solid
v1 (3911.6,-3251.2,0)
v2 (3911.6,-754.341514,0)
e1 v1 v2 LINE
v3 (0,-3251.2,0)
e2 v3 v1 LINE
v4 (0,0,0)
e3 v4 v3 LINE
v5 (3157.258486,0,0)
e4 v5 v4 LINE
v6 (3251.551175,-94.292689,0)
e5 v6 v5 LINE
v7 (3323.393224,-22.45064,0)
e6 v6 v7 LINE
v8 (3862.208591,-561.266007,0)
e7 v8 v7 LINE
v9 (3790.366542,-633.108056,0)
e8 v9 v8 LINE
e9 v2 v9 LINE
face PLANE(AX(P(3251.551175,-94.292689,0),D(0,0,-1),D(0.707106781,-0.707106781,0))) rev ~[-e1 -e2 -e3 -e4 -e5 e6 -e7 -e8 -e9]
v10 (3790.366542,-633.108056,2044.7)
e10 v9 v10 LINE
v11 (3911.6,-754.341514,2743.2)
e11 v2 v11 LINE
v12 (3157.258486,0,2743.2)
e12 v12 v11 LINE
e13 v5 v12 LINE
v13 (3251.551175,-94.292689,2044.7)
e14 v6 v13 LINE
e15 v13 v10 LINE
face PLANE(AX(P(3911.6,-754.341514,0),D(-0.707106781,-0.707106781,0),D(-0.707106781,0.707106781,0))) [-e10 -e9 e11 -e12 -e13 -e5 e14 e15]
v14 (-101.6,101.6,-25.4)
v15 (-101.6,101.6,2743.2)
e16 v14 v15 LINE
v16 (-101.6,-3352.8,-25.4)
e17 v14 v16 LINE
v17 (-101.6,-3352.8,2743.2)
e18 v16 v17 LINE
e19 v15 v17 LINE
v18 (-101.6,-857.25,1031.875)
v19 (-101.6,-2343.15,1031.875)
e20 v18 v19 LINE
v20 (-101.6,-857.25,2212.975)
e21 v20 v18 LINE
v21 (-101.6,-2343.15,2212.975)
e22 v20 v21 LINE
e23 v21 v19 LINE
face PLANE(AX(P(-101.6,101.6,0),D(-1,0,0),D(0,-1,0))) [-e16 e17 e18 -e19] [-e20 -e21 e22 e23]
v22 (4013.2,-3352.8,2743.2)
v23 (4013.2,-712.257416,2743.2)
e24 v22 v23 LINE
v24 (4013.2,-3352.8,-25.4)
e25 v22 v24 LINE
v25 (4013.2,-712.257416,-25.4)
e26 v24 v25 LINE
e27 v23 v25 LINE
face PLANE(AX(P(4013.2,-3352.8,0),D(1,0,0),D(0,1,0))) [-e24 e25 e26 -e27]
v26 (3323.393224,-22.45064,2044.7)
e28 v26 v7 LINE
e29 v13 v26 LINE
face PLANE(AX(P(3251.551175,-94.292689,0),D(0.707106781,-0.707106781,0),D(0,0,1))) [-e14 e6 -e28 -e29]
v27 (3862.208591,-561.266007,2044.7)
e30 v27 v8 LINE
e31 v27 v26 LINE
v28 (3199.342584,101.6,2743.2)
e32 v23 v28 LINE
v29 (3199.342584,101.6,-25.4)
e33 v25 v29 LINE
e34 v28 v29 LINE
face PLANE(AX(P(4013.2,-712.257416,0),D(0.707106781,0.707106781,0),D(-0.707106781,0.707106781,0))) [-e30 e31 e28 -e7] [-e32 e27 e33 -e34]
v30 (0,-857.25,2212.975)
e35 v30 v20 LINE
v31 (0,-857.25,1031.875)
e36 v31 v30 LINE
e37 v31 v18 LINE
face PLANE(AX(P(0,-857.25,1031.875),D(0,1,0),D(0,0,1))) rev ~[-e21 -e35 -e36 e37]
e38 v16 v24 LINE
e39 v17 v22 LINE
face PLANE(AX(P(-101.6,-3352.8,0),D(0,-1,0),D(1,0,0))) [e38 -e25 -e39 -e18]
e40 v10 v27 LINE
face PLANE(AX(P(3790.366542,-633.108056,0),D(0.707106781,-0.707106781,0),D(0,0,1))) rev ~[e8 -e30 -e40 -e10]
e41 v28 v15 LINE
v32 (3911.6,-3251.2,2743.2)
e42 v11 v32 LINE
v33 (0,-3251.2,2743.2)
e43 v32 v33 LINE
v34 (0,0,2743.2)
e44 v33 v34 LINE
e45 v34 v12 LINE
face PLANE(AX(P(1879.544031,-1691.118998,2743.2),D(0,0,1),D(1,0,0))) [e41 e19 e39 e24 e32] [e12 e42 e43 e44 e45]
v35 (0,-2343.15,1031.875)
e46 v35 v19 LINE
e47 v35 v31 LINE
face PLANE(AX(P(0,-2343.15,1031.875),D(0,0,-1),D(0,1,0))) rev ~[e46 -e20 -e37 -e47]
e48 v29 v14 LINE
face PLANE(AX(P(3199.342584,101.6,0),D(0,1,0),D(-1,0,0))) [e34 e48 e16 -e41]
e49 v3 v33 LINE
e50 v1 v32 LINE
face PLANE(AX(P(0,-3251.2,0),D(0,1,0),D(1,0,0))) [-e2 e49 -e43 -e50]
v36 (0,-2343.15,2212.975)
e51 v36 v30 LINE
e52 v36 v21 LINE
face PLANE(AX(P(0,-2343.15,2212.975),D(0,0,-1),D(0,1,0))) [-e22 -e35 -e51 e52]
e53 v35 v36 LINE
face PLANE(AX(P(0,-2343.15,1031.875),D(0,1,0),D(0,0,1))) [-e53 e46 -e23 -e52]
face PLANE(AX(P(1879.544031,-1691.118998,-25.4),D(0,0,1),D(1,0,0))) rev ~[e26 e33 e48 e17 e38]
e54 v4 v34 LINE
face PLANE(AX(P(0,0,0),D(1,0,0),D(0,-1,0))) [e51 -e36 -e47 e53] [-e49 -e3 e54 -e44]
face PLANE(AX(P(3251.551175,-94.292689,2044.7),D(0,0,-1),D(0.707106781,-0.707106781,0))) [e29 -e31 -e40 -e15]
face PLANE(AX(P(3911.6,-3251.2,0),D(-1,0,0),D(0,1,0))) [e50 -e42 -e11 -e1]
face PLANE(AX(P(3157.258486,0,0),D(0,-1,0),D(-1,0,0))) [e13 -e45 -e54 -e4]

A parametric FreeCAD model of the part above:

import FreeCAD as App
import Part
import Sketcher
from FreeCAD import Vector
Q = App.Units.Quantity

doc = App.newDocument("Part")
params = doc.addObject("Spreadsheet::Sheet", "Params")
for row, (alias, value) in enumerate([
    ("sketch1_width", "154 in"),
    ("sketch1_height", "128 in"),
    ("sketch1_length", "42 in"),
    ("pad1_length", "1 in"),
    ("sketch2_width", "162 in"),
    ("sketch2_height", "136 in"),
    ("pad2_length", "108 in"),
    ("sketch3_width", "162 in"),
    ("sketch3_height", "136 in"),
    ("sketch4_width", "154 in"),
    ("sketch4_height", "128 in"),
    ("sketch4_length", "42 in"),
    ("sketch5_width", "58.5 in"),
    ("sketch5_height", "46.5 in"),
    ("sketch6_width", "30 in"),
    ("sketch6_height", "80.4999999 in"),
], start=1):
    params.set(f"A{row}", alias)
    params.set(f"B{row}", "=" + value)
    params.setAlias(f"B{row}", alias)

body = doc.addObject("PartDesign::Body", "Body")

sketch1 = body.newObject("Sketcher::SketchObject", "Sketch")
sketch1.AttachmentSupport = (doc.getObject("XY_Plane"), [""])
sketch1.MapMode = "FlatFace"
sketch1.addGeometry(Part.LineSegment(Vector(3157, 0, 0), Vector(0, 0, 0)), False)
sketch1.addGeometry(Part.LineSegment(Vector(0, 0, 0), Vector(0, -3251, 0)), False)
sketch1.addGeometry(Part.LineSegment(Vector(0, -3251, 0), Vector(3912, -3251, 0)), False)
sketch1.addGeometry(Part.LineSegment(Vector(3912, -3251, 0), Vector(3912, -754, 0)), False)
sketch1.addGeometry(Part.LineSegment(Vector(3912, -754, 0), Vector(3157, 0, 0)), False)
sketch1.addConstraint(Sketcher.Constraint("Coincident", 0, 2, 1, 1))
sketch1.addConstraint(Sketcher.Constraint("Coincident", 1, 2, 2, 1))
sketch1.addConstraint(Sketcher.Constraint("Coincident", 2, 2, 3, 1))
sketch1.addConstraint(Sketcher.Constraint("Coincident", 3, 2, 4, 1))
sketch1.addConstraint(Sketcher.Constraint("Coincident", 4, 2, 0, 1))
sketch1.addConstraint(Sketcher.Constraint("Horizontal", 0))
sketch1.addConstraint(Sketcher.Constraint("Vertical", 1))
sketch1.addConstraint(Sketcher.Constraint("Horizontal", 2))
sketch1.addConstraint(Sketcher.Constraint("Vertical", 3))
sketch1.addConstraint(Sketcher.Constraint("Coincident", 0, 2, -1, 1))
sketch1.addConstraint(Sketcher.Constraint("DistanceX", 2, 1, 2, 2, Q("154 in")))
sketch1.addConstraint(Sketcher.Constraint("DistanceY", 1, 2, 1, 1, Q("128 in")))
sketch1.addConstraint(Sketcher.Constraint("Distance", 4, Q("42 in")))
sketch1.addConstraint(Sketcher.Constraint("Angle", 4, Q("135 deg")))
sketch1.setExpression("Constraints[10]", "Params.sketch1_width")
sketch1.setExpression("Constraints[11]", "Params.sketch1_height")
sketch1.setExpression("Constraints[12]", "Params.sketch1_length")
pad1 = body.newObject("PartDesign::Pad", "Pad")
pad1.Profile = sketch1
pad1.setExpression("Length", "Params.pad1_length")
pad1.Reversed = True

sketch2 = body.newObject("Sketcher::SketchObject", "Sketch001")
sketch2.AttachmentSupport = (doc.getObject("XY_Plane"), [""])
sketch2.MapMode = "FlatFace"
sketch2.addGeometry(Part.LineSegment(Vector(3199, 102, 0), Vector(-102, 102, 0)), False)
sketch2.addGeometry(Part.LineSegment(Vector(-102, 102, 0), Vector(-102, -3353, 0)), False)
sketch2.addGeometry(Part.LineSegment(Vector(-102, -3353, 0), Vector(4013, -3353, 0)), False)
sketch2.addGeometry(Part.LineSegment(Vector(4013, -3353, 0), Vector(4013, -712, 0)), False)
sketch2.addGeometry(Part.LineSegment(Vector(4013, -712, 0), Vector(3199, 102, 0)), False)
sketch2.addConstraint(Sketcher.Constraint("Coincident", 0, 2, 1, 1))
sketch2.addConstraint(Sketcher.Constraint("Coincident", 1, 2, 2, 1))
sketch2.addConstraint(Sketcher.Constraint("Coincident", 2, 2, 3, 1))
sketch2.addConstraint(Sketcher.Constraint("Coincident", 3, 2, 4, 1))
sketch2.addConstraint(Sketcher.Constraint("Coincident", 4, 2, 0, 1))
sketch2.addConstraint(Sketcher.Constraint("Horizontal", 0))
sketch2.addConstraint(Sketcher.Constraint("Vertical", 1))
sketch2.addConstraint(Sketcher.Constraint("Horizontal", 2))
sketch2.addConstraint(Sketcher.Constraint("Vertical", 3))
sketch2.addConstraint(Sketcher.Constraint("DistanceX", 2, 1, 2, 2, Q("162 in")))
sketch2.addConstraint(Sketcher.Constraint("DistanceY", 1, 2, 1, 1, Q("136 in")))
sketch2.addConstraint(Sketcher.Constraint("DistanceX", 0, 2, -1, 1, Q("4 in")))
sketch2.addConstraint(Sketcher.Constraint("DistanceY", -1, 1, 0, 2, Q("4 in")))
sketch2.addConstraint(Sketcher.Constraint("Angle", 4, Q("135 deg")))
sketch2.addConstraint(Sketcher.Constraint("DistanceX", 0, 2, 0, 1, 3300.942584))
sketch2.setExpression("Constraints[9]", "Params.sketch2_width")
sketch2.setExpression("Constraints[10]", "Params.sketch2_height")
pad2 = body.newObject("PartDesign::Pad", "Pad001")
pad2.Profile = sketch2
pad2.setExpression("Length", "Params.pad2_length")

sketch3 = body.newObject("Sketcher::SketchObject", "Sketch002")
sketch3.AttachmentSupport = (doc.getObject("XY_Plane"), [""])
sketch3.MapMode = "FlatFace"
sketch3.addGeometry(Part.LineSegment(Vector(3199, 102, 0), Vector(-102, 102, 0)), False)
sketch3.addGeometry(Part.LineSegment(Vector(-102, 102, 0), Vector(-102, -3353, 0)), False)
sketch3.addGeometry(Part.LineSegment(Vector(-102, -3353, 0), Vector(4013, -3353, 0)), False)
sketch3.addGeometry(Part.LineSegment(Vector(4013, -3353, 0), Vector(4013, -712, 0)), False)
sketch3.addGeometry(Part.LineSegment(Vector(4013, -712, 0), Vector(3199, 102, 0)), False)
sketch3.addConstraint(Sketcher.Constraint("Coincident", 0, 2, 1, 1))
sketch3.addConstraint(Sketcher.Constraint("Coincident", 1, 2, 2, 1))
sketch3.addConstraint(Sketcher.Constraint("Coincident", 2, 2, 3, 1))
sketch3.addConstraint(Sketcher.Constraint("Coincident", 3, 2, 4, 1))
sketch3.addConstraint(Sketcher.Constraint("Coincident", 4, 2, 0, 1))
sketch3.addConstraint(Sketcher.Constraint("Horizontal", 0))
sketch3.addConstraint(Sketcher.Constraint("Vertical", 1))
sketch3.addConstraint(Sketcher.Constraint("Horizontal", 2))
sketch3.addConstraint(Sketcher.Constraint("Vertical", 3))
sketch3.addConstraint(Sketcher.Constraint("DistanceX", 2, 1, 2, 2, Q("162 in")))
sketch3.addConstraint(Sketcher.Constraint("DistanceY", 1, 2, 1, 1, Q("136 in")))
sketch3.addConstraint(Sketcher.Constraint("DistanceX", 0, 2, -1, 1, Q("4 in")))
sketch3.addConstraint(Sketcher.Constraint("DistanceY", -1, 1, 0, 2, Q("4 in")))
sketch3.addConstraint(Sketcher.Constraint("Angle", 4, Q("135 deg")))
sketch3.addConstraint(Sketcher.Constraint("DistanceX", 0, 2, 0, 1, 3300.942584))
sketch3.setExpression("Constraints[9]", "Params.sketch3_width")
sketch3.setExpression("Constraints[10]", "Params.sketch3_height")
pad3 = body.newObject("PartDesign::Pad", "Pad002")
pad3.Profile = sketch3
pad3.Type = "UpToLast"
pad3.Reversed = True

sketch4 = body.newObject("Sketcher::SketchObject", "Sketch003")
sketch4.AttachmentSupport = (doc.getObject("XY_Plane"), [""])
sketch4.MapMode = "FlatFace"
sketch4.addGeometry(Part.LineSegment(Vector(3157, 0, 0), Vector(0, 0, 0)), False)
sketch4.addGeometry(Part.LineSegment(Vector(0, 0, 0), Vector(0, -3251, 0)), False)
sketch4.addGeometry(Part.LineSegment(Vector(0, -3251, 0), Vector(3912, -3251, 0)), False)
sketch4.addGeometry(Part.LineSegment(Vector(3912, -3251, 0), Vector(3912, -754, 0)), False)
sketch4.addGeometry(Part.LineSegment(Vector(3912, -754, 0), Vector(3157, 0, 0)), False)
sketch4.addConstraint(Sketcher.Constraint("Coincident", 0, 2, 1, 1))
sketch4.addConstraint(Sketcher.Constraint("Coincident", 1, 2, 2, 1))
sketch4.addConstraint(Sketcher.Constraint("Coincident", 2, 2, 3, 1))
sketch4.addConstraint(Sketcher.Constraint("Coincident", 3, 2, 4, 1))
sketch4.addConstraint(Sketcher.Constraint("Coincident", 4, 2, 0, 1))
sketch4.addConstraint(Sketcher.Constraint("Horizontal", 0))
sketch4.addConstraint(Sketcher.Constraint("Vertical", 1))
sketch4.addConstraint(Sketcher.Constraint("Horizontal", 2))
sketch4.addConstraint(Sketcher.Constraint("Vertical", 3))
sketch4.addConstraint(Sketcher.Constraint("Coincident", 0, 2, -1, 1))
sketch4.addConstraint(Sketcher.Constraint("DistanceX", 2, 1, 2, 2, Q("154 in")))
sketch4.addConstraint(Sketcher.Constraint("DistanceY", 1, 2, 1, 1, Q("128 in")))
sketch4.addConstraint(Sketcher.Constraint("Distance", 4, Q("42 in")))
sketch4.addConstraint(Sketcher.Constraint("Angle", 4, Q("135 deg")))
sketch4.setExpression("Constraints[10]", "Params.sketch4_width")
sketch4.setExpression("Constraints[11]", "Params.sketch4_height")
sketch4.setExpression("Constraints[12]", "Params.sketch4_length")
pocket1 = body.newObject("PartDesign::Pocket", "Pocket")
pocket1.Profile = sketch4
pocket1.Type = "ThroughAll"
pocket1.Reversed = True

sketch5 = body.newObject("Sketcher::SketchObject", "Sketch004")
sketch5.AttachmentSupport = (doc.getObject("YZ_Plane"), [""])
sketch5.MapMode = "FlatFace"
sketch5.addGeometry(Part.LineSegment(Vector(-2343, 2213, 0), Vector(-2343, 1032, 0)), False)
sketch5.addGeometry(Part.LineSegment(Vector(-2343, 1032, 0), Vector(-857, 1032, 0)), False)
sketch5.addGeometry(Part.LineSegment(Vector(-857, 1032, 0), Vector(-857, 2213, 0)), False)
sketch5.addGeometry(Part.LineSegment(Vector(-857, 2213, 0), Vector(-2343, 2213, 0)), False)
sketch5.addConstraint(Sketcher.Constraint("Coincident", 0, 2, 1, 1))
sketch5.addConstraint(Sketcher.Constraint("Coincident", 1, 2, 2, 1))
sketch5.addConstraint(Sketcher.Constraint("Coincident", 2, 2, 3, 1))
sketch5.addConstraint(Sketcher.Constraint("Coincident", 3, 2, 0, 1))
sketch5.addConstraint(Sketcher.Constraint("Vertical", 0))
sketch5.addConstraint(Sketcher.Constraint("Horizontal", 1))
sketch5.addConstraint(Sketcher.Constraint("Vertical", 2))
sketch5.addConstraint(Sketcher.Constraint("Horizontal", 3))
sketch5.addConstraint(Sketcher.Constraint("DistanceX", 1, 1, 1, 2, Q("58.5 in")))
sketch5.addConstraint(Sketcher.Constraint("DistanceY", 0, 2, 0, 1, Q("46.5 in")))
sketch5.addConstraint(Sketcher.Constraint("DistanceX", 0, 2, -1, 1, Q("92.25 in")))
sketch5.addConstraint(Sketcher.Constraint("DistanceY", -1, 1, 0, 2, Q("40.625 in")))
sketch5.setExpression("Constraints[8]", "Params.sketch5_width")
sketch5.setExpression("Constraints[9]", "Params.sketch5_height")
pocket2 = body.newObject("PartDesign::Pocket", "Pocket001")
pocket2.Profile = sketch5
pocket2.Type = "ThroughAll"

sketch6 = body.newObject("Sketcher::SketchObject", "Sketch005")
sketch6.Placement = App.Placement(Vector(1578.629243, 1578.629243, 0), App.Rotation(Vector(0.707106781, -0.707106781, 0), Vector(0, 0, 0.999999999), Vector(-0.707106781, -0.707106781, 0), "ZXY"))
sketch6.addGeometry(Part.LineSegment(Vector(2366, 2045, 0), Vector(2366, 0, 0)), False)
sketch6.addGeometry(Part.LineSegment(Vector(2366, 0, 0), Vector(3128, 0, 0)), False)
sketch6.addGeometry(Part.LineSegment(Vector(3128, 0, 0), Vector(3128, 2045, 0)), False)
sketch6.addGeometry(Part.LineSegment(Vector(3128, 2045, 0), Vector(2366, 2045, 0)), False)
sketch6.addConstraint(Sketcher.Constraint("Coincident", 0, 2, 1, 1))
sketch6.addConstraint(Sketcher.Constraint("Coincident", 1, 2, 2, 1))
sketch6.addConstraint(Sketcher.Constraint("Coincident", 2, 2, 3, 1))
sketch6.addConstraint(Sketcher.Constraint("Coincident", 3, 2, 0, 1))
sketch6.addConstraint(Sketcher.Constraint("Vertical", 0))
sketch6.addConstraint(Sketcher.Constraint("Horizontal", 1))
sketch6.addConstraint(Sketcher.Constraint("Vertical", 2))
sketch6.addConstraint(Sketcher.Constraint("Horizontal", 3))
sketch6.addConstraint(Sketcher.Constraint("PointOnObject", 0, 2, -1))
sketch6.addConstraint(Sketcher.Constraint("DistanceX", 1, 1, 1, 2, Q("30 in")))
sketch6.addConstraint(Sketcher.Constraint("DistanceY", 0, 2, 0, 1, Q("80.4999999 in")))
sketch6.addConstraint(Sketcher.Constraint("DistanceX", -1, 1, 0, 2, 2365.868884))
sketch6.setExpression("Constraints[9]", "Params.sketch6_width")
sketch6.setExpression("Constraints[10]", "Params.sketch6_height")
pocket3 = body.newObject("PartDesign::Pocket", "Pocket002")
pocket3.Profile = sketch6
pocket3.Type = "ThroughAll"

doc.recompute()
